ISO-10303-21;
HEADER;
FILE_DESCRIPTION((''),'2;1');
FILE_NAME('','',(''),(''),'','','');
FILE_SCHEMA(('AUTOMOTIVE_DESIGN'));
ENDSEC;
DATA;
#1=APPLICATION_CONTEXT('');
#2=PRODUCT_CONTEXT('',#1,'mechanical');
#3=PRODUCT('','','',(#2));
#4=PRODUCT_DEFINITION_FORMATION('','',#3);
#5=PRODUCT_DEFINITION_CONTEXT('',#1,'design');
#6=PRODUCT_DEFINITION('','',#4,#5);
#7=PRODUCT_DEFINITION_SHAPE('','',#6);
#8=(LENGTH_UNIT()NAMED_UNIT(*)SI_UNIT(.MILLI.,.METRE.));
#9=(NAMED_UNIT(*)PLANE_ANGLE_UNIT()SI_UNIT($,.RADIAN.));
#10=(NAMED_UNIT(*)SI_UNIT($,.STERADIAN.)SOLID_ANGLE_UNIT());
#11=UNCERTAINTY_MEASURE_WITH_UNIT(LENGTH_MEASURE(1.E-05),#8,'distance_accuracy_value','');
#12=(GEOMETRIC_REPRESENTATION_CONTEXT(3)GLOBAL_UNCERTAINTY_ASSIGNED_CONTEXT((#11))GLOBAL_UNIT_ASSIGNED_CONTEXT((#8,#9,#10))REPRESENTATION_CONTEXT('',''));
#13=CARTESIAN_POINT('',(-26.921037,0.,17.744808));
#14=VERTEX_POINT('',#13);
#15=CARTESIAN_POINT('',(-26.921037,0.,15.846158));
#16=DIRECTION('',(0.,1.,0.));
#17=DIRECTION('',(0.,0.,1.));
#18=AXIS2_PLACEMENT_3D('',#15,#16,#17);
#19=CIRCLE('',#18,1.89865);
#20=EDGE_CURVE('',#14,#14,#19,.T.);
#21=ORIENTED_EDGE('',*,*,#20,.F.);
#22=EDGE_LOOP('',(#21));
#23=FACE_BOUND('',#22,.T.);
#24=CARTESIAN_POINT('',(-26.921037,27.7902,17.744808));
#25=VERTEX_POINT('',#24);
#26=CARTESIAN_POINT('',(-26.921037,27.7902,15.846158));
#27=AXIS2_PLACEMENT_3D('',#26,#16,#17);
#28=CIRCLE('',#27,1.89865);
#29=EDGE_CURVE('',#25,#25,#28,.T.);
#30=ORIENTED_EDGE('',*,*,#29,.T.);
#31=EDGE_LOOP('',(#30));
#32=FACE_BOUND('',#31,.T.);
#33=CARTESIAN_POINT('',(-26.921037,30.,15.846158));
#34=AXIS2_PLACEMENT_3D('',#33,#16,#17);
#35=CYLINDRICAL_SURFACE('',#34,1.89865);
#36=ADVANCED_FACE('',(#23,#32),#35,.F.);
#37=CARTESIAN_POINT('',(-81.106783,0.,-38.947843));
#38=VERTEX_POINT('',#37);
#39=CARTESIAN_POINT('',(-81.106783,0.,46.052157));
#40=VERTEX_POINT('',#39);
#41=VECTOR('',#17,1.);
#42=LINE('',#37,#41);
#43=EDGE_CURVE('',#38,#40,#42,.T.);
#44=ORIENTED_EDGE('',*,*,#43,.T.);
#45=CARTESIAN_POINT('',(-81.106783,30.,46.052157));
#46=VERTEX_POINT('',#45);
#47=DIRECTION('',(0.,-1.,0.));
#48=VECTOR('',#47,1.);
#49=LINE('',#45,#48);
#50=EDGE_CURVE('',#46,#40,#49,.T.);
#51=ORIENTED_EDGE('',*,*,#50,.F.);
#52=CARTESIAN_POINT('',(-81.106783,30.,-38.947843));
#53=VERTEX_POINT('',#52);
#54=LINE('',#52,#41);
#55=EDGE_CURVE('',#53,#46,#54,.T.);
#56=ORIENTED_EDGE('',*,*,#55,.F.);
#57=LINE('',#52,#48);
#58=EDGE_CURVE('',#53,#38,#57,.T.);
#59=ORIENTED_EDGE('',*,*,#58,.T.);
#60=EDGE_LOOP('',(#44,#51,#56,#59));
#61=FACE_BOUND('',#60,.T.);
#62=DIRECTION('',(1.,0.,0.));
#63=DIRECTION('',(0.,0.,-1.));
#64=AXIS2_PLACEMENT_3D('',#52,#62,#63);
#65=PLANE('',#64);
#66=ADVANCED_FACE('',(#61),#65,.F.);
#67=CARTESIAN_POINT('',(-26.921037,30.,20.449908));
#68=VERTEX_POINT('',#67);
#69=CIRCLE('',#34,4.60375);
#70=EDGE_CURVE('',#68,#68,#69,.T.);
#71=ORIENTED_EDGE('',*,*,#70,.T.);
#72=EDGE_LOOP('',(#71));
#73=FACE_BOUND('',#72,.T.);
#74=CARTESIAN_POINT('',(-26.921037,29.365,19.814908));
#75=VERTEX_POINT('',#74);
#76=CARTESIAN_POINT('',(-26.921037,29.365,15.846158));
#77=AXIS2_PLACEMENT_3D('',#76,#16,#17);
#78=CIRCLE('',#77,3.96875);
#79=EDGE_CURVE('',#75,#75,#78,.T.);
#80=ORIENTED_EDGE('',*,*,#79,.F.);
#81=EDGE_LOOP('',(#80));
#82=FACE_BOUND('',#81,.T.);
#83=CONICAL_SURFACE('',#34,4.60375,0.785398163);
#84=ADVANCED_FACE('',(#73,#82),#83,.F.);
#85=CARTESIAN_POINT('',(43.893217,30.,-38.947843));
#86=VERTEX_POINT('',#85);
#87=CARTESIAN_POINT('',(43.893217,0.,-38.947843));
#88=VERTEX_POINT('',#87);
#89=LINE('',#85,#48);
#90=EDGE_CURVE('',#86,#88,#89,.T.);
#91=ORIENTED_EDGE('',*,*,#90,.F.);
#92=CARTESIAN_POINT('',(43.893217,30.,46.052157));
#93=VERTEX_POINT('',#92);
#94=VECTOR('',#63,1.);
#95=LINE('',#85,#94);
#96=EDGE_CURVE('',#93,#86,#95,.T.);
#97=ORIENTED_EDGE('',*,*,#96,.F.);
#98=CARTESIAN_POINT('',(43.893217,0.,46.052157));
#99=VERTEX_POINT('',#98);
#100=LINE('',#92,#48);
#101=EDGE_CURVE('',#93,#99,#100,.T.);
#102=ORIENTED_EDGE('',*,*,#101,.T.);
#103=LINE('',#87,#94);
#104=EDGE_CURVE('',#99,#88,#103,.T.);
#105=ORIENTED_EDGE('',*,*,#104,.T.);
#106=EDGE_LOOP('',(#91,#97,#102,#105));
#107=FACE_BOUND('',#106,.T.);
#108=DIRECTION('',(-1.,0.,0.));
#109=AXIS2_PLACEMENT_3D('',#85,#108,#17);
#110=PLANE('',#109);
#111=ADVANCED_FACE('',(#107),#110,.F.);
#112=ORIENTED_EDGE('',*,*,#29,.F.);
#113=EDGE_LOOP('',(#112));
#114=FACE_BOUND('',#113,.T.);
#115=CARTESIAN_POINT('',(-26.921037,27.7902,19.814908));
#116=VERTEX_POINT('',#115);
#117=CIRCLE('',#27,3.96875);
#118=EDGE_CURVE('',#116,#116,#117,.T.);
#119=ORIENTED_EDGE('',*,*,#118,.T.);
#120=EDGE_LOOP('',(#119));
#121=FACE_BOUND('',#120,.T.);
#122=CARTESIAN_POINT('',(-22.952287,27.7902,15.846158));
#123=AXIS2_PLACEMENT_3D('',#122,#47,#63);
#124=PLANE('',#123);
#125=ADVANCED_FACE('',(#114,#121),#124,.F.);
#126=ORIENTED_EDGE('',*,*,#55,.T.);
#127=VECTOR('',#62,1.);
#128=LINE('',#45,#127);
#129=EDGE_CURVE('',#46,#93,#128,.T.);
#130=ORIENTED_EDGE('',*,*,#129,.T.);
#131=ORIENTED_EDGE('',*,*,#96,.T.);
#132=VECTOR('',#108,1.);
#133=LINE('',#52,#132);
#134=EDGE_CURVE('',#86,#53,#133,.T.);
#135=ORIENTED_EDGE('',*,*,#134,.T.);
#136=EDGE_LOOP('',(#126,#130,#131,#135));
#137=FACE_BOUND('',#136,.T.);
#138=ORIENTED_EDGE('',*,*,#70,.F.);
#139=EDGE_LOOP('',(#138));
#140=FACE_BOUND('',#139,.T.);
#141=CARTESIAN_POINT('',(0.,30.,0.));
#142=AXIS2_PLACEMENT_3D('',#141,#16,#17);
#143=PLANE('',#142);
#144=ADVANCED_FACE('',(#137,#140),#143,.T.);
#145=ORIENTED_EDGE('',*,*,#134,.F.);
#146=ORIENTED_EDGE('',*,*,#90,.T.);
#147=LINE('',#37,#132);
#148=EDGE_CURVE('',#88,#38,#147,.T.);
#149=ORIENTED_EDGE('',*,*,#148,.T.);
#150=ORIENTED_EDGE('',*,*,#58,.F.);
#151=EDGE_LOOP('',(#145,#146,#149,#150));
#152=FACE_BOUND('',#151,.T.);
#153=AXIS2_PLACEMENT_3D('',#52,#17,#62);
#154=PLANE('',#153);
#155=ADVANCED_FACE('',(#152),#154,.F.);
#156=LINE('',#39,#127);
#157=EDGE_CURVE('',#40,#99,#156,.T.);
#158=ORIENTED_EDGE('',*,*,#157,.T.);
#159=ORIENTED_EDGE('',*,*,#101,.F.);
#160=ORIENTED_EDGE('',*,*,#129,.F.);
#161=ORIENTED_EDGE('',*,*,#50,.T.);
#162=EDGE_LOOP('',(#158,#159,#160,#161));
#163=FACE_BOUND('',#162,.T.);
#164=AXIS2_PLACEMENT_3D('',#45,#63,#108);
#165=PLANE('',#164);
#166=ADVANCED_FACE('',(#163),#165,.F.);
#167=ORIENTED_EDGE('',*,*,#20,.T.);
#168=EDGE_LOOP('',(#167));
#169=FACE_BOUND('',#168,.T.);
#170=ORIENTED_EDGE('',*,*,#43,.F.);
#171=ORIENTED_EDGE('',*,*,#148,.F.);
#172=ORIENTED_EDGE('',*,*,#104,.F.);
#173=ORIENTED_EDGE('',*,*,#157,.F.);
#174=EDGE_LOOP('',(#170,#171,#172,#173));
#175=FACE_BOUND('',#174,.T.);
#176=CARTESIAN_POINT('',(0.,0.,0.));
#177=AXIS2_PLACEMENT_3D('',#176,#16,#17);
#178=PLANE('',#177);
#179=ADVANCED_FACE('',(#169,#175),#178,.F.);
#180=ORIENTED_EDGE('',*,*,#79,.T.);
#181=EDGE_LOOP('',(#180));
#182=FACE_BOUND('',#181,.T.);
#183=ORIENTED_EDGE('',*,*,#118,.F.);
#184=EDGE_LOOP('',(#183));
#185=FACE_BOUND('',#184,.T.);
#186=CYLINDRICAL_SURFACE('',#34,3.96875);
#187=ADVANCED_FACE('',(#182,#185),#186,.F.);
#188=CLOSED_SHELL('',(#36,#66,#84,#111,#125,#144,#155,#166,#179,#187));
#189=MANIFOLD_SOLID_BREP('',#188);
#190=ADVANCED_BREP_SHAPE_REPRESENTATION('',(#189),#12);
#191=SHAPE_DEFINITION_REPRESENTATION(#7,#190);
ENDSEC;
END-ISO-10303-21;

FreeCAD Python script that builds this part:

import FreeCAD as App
import Part
import Sketcher

V = App.Vector
Q = App.Units.Quantity


def add_polygon(sketch, points):
    """Adds a closed chain of lines whose ends are joined by coincident constraints."""
    first, n = sketch.GeometryCount, len(points)
    for a, b in zip(points, points[1:] + points[:1]):
        sketch.addGeometry(Part.LineSegment(App.Vector(*a, 0), App.Vector(*b, 0)), False)
    for i in range(n):
        sketch.addConstraint(Sketcher.Constraint("Coincident", first + i, 2, first + (i + 1) % n, 1))

doc = App.newDocument("Part")
body = doc.addObject("PartDesign::Body", "Body")

# Sketch on XZ plane
sketch1 = doc.addObject("Sketcher::SketchObject", "Sketch")
body.addObject(sketch1)
sketch1.AttachmentSupport = (doc.XZ_Plane, [""])
sketch1.MapMode = "FlatFace"
add_polygon(sketch1, [(-81, -39), (-81, 46), (44, 46), (44, -39)])  # lines 0-3
sketch1.addConstraint([
    Sketcher.Constraint("Vertical", 0),
    Sketcher.Constraint("Horizontal", 1),
    Sketcher.Constraint("Vertical", 2),
    Sketcher.Constraint("Horizontal", 3),
    Sketcher.Constraint("DistanceX", 1, 1, 1, 2, 125.0),
    Sketcher.Constraint("DistanceY", 0, 1, 0, 2, 85.0),
    Sketcher.Constraint("DistanceX", 0, 2, -1, 1, 81.106783),
    Sketcher.Constraint("DistanceY", -1, 1, 0, 2, 46.052157),
])
pad1 = doc.addObject("PartDesign::Pad", "Pad")
body.addObject(pad1)
pad1.Profile = sketch1
pad1.Length = 30
pad1.Reversed = True

# Sketch on YZ plane
sketch2 = doc.addObject("Sketcher::SketchObject", "Sketch001")
body.addObject(sketch2)
sketch2.AttachmentSupport = (doc.YZ_Plane, [""])
sketch2.MapMode = "FlatFace"
sketch2.AttachmentOffset = App.Placement(V(0, 0, -26.921037), App.Rotation())
add_polygon(sketch2, [(0, 15.8), (30, 15.8), (30, 20.4), (29.4, 19.8), (27.8, 19.8), (27.8, 17.7), (0, 17.7)])  # lines 0-6
sketch2.addGeometry(Part.LineSegment(V(30, 15.8, 0), V(0, 15.8, 0)), True)  # axis
sketch2.addConstraint([
    Sketcher.Constraint("Horizontal", 0),
    Sketcher.Constraint("Vertical", 1),
    Sketcher.Constraint("Horizontal", 3),
    Sketcher.Constraint("Vertical", 4),
    Sketcher.Constraint("Horizontal", 5),
    Sketcher.Constraint("Vertical", 6),
    Sketcher.Constraint("Horizontal", 7),
    Sketcher.Constraint("Coincident", 7, 1, 0, 2),
    Sketcher.Constraint("PointOnObject", 5, 2, -2),
    Sketcher.Constraint("PointOnObject", 7, 2, -2),
    Sketcher.Constraint("DistanceX", 0, 1, 0, 2, 30.0),
    Sketcher.Constraint("Angle", 2, Q("-135 deg")),
    Sketcher.Constraint("DistanceX", 3, 2, 3, 1, 1.5748),
    Sketcher.Constraint("DistanceX", 5, 2, 5, 1, 27.7902),
    Sketcher.Constraint("DistanceY", 4, 2, 4, 1, 2.0701),
    Sketcher.Constraint("DistanceY", 1, 1, 1, 2, 4.60375),
    Sketcher.Constraint("DistanceY", -1, 1, 0, 2, 15.846158),
])
groove = doc.addObject("PartDesign::Groove", "Groove")
body.addObject(groove)
groove.Profile = sketch2
groove.ReferenceAxis = (sketch2, ["Axis0"])
groove.Angle = 360

doc.recompute()
